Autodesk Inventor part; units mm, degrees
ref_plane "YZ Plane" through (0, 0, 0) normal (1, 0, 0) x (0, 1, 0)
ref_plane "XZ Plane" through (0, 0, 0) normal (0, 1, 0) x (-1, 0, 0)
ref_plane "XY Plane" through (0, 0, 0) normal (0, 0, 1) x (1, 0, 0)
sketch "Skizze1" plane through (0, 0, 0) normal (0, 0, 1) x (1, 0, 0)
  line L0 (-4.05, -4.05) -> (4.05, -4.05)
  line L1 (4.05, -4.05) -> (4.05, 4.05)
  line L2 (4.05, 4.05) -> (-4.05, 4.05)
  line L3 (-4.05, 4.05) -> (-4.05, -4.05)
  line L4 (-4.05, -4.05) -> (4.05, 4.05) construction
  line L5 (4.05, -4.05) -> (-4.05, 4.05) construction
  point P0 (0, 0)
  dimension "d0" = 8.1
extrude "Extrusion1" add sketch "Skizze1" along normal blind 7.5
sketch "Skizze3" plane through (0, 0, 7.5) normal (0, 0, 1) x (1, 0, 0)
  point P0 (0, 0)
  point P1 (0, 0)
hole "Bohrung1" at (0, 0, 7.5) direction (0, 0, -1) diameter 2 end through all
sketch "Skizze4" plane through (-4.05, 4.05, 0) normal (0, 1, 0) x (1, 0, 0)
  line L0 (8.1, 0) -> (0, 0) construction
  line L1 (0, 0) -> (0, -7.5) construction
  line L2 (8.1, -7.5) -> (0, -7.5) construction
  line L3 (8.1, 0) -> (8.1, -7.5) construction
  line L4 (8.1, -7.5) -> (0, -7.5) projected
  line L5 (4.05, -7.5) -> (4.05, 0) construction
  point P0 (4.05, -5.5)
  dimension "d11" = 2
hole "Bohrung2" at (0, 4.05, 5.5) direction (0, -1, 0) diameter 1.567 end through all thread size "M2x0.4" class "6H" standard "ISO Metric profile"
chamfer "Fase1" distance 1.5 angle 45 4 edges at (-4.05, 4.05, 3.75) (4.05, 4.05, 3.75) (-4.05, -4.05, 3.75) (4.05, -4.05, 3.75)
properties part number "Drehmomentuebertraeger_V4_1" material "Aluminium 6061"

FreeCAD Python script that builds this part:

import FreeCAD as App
import Part
import Sketcher
from FreeCAD import Vector


def edges_at(feature, points):
    """Names of the edges that pass closest to the given points."""
    edges = feature.Shape.Edges
    near = lambda p: min(range(len(edges)), key=lambda i: edges[i].distToShape(Part.Vertex(*p))[0])
    return sorted({f"Edge{near(p) + 1}" for p in points})

doc = App.newDocument("Part")
body = doc.addObject("PartDesign::Body", "Body")

sketch1 = body.newObject("Sketcher::SketchObject", "Sketch")
sketch1.AttachmentSupport = (doc.getObject("XY_Plane"), [""])
sketch1.MapMode = "FlatFace"
sketch1.addGeometry(Part.LineSegment(Vector(-4, 4, 0), Vector(-4, -4, 0)), False)
sketch1.addGeometry(Part.LineSegment(Vector(-4, -4, 0), Vector(4, -4, 0)), False)
sketch1.addGeometry(Part.LineSegment(Vector(4, -4, 0), Vector(4, 4, 0)), False)
sketch1.addGeometry(Part.LineSegment(Vector(4, 4, 0), Vector(-4, 4, 0)), False)
sketch1.addConstraint(Sketcher.Constraint("Coincident", 0, 2, 1, 1))
sketch1.addConstraint(Sketcher.Constraint("Coincident", 1, 2, 2, 1))
sketch1.addConstraint(Sketcher.Constraint("Coincident", 2, 2, 3, 1))
sketch1.addConstraint(Sketcher.Constraint("Coincident", 3, 2, 0, 1))
sketch1.addConstraint(Sketcher.Constraint("Vertical", 0))
sketch1.addConstraint(Sketcher.Constraint("Horizontal", 1))
sketch1.addConstraint(Sketcher.Constraint("Vertical", 2))
sketch1.addConstraint(Sketcher.Constraint("Horizontal", 3))
sketch1.addConstraint(Sketcher.Constraint("Symmetric", 0, 2, 2, 2, -1, 1))
sketch1.addConstraint(Sketcher.Constraint("Equal", 3, 0))
sketch1.addConstraint(Sketcher.Constraint("DistanceX", 1, 1, 1, 2, 8.1))
pad1 = body.newObject("PartDesign::Pad", "Pad")
pad1.Profile = sketch1
pad1.Length = 7.5

sketch2 = body.newObject("Sketcher::SketchObject", "Sketch001")
sketch2.AttachmentSupport = (doc.getObject("XY_Plane"), [""])
sketch2.MapMode = "FlatFace"
sketch2.AttachmentOffset = App.Placement(Vector(0, 0, 7.5), App.Rotation())
sketch2.addGeometry(Part.Circle(Vector(0, 0, 0), Vector(0, 0, 1), 1), False)
sketch2.addConstraint(Sketcher.Constraint("Coincident", 0, 3, -1, 1))
sketch2.addConstraint(Sketcher.Constraint("Diameter", 0, 2.0))
doc.recompute()
hole = body.newObject("PartDesign::Hole", "Hole")
hole.Profile = sketch2
hole.ThreadType = "None"
hole.Diameter = 2
hole.DepthType = "ThroughAll"

sketch3 = body.newObject("Sketcher::SketchObject", "Sketch002")
sketch3.AttachmentSupport = (doc.getObject("XZ_Plane"), [""])
sketch3.MapMode = "FlatFace"
sketch3.AttachmentOffset = App.Placement(Vector(0, 0, -4.05), App.Rotation())
sketch3.addGeometry(Part.Circle(Vector(0, 5.5, 0), Vector(0, 0, 1), 0.8), False)
sketch3.addConstraint(Sketcher.Constraint("PointOnObject", 0, 3, -2))
sketch3.addConstraint(Sketcher.Constraint("Diameter", 0, 1.567))
sketch3.addConstraint(Sketcher.Constraint("DistanceY", -1, 1, 0, 3, 5.5))
doc.recompute()
hole2 = body.newObject("PartDesign::Hole", "Hole001")
hole2.Profile = sketch3
hole2.ThreadType = "None"
hole2.Diameter = 1.567
hole2.DepthType = "ThroughAll"
hole2.Reversed = True
doc.recompute()

chamfer = body.newObject("PartDesign::Chamfer", "Chamfer")
chamfer.Base = (hole2, edges_at(hole2, [
    (-4.05, 4.05, 3.75),
    (4.05, 4.05, 3.75),
    (-4.05, -4.05, 3.75),
    (4.05, -4.05, 3.75),
]))
chamfer.Size = 1.5

doc.recompute()
